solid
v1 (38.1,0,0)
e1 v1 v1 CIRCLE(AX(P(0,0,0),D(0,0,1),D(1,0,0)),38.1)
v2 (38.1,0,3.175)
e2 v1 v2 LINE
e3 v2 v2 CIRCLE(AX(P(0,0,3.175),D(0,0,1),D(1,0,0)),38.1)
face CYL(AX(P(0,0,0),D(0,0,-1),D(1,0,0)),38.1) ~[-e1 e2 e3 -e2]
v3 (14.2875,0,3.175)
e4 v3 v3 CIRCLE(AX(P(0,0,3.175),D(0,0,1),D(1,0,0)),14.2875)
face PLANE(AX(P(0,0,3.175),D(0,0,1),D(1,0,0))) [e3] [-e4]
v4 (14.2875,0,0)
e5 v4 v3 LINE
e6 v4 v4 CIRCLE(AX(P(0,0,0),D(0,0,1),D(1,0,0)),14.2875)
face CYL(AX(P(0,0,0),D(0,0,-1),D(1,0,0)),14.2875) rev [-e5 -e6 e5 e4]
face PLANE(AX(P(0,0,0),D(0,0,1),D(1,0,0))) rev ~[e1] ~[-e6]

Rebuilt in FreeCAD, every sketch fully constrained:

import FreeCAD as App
import Part
import Sketcher
Q = App.Units.Quantity

doc = App.newDocument("Part")
body = doc.addObject("PartDesign::Body", "Body")

# Sketch on XY plane
sketch1 = body.newObject("Sketcher::SketchObject", "Sketch")
sketch1.AttachmentSupport = (doc.getObject("XY_Plane"), [""])
sketch1.MapMode = "FlatFace"
sketch1.addGeometry(Part.Circle(App.Vector(0, 0, 0), App.Vector(0, 0, 1), 38.1), False)
sketch1.addGeometry(Part.Circle(App.Vector(0, 0, 0), App.Vector(0, 0, 1), 14.2875), False)
sketch1.addConstraint(Sketcher.Constraint("Coincident", 0, 3, -1, 1))
sketch1.addConstraint(Sketcher.Constraint("Coincident", 1, 3, -1, 1))
sketch1.addConstraint(Sketcher.Constraint("Diameter", 0, Q("3 in")))
sketch1.addConstraint(Sketcher.Constraint("Diameter", 1, Q("1.125 in")))
pad1 = body.newObject("PartDesign::Pad", "Pad")
pad1.Profile = sketch1
pad1.Length = Q("0.125 in")

doc.recompute()
